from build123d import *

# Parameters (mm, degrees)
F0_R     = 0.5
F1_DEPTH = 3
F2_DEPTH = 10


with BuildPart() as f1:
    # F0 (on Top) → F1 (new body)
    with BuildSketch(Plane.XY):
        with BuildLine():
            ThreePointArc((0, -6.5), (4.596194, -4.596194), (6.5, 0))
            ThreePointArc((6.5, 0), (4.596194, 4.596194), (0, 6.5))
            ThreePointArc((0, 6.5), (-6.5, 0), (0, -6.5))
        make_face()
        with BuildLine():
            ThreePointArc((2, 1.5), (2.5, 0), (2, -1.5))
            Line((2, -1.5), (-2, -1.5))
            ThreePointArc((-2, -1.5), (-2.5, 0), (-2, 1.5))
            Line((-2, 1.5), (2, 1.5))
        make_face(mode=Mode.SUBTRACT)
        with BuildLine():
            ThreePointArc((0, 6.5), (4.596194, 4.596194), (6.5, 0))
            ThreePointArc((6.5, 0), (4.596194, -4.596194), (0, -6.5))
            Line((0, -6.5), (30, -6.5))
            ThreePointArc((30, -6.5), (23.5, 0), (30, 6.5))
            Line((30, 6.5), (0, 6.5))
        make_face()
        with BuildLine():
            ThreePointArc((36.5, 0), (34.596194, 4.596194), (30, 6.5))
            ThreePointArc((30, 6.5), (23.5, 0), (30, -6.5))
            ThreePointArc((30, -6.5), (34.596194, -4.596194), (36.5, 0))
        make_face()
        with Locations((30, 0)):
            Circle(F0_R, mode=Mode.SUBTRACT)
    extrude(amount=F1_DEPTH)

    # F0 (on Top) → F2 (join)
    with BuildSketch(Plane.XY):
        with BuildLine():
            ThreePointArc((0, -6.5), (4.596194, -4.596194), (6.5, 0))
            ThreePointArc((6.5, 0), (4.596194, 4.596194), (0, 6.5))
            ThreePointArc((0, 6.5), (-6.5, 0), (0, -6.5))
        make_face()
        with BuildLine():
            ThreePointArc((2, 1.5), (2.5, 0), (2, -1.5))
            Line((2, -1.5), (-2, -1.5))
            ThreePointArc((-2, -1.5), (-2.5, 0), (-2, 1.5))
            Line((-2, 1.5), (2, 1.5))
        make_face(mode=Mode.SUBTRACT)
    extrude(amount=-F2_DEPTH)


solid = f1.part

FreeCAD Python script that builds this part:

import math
import FreeCAD as App
import Part
import Sketcher
Q = App.Units.Quantity

doc = App.newDocument("Part")
params = doc.addObject("Spreadsheet::Sheet", "Params")
for row, (alias, value) in enumerate([
    ("sketch1_diameter", "1 mm"),
    ("sketch1_radius", "6.5 mm"),
    ("sketch1_radius2", "2.5 mm"),
    ("sketch1_width", "30 mm"),
    ("sketch1_width2", "4 mm"),
    ("pad1_length", "3 mm"),
    ("sketch2_radius", "6.5 mm"),
    ("sketch2_radius2", "2.5 mm"),
    ("sketch2_width", "4 mm"),
    ("pad2_length", "10 mm"),
], start=1):
    params.set(f"A{row}", alias)
    params.set(f"B{row}", "=" + value)
    params.setAlias(f"B{row}", alias)

body = doc.addObject("PartDesign::Body", "Body")

# Sketch on XY plane
sketch1 = body.newObject("Sketcher::SketchObject", "Sketch")
sketch1.AttachmentSupport = (doc.getObject("XY_Plane"), [""])
sketch1.MapMode = "FlatFace"
sketch1.addGeometry([
    Part.ArcOfCircle(Part.Circle(App.Vector(0, 0, 0), App.Vector(0, 0, 1), 6.5), math.radians(90), math.radians(270)),  # 0
    Part.LineSegment(App.Vector(0, -6.5, 0), App.Vector(30, -6.5, 0)),  # 1
    Part.ArcOfCircle(Part.Circle(App.Vector(30, 0, 0), App.Vector(0, 0, 1), 6.5), math.radians(-90), math.radians(0)),  # 2
    Part.ArcOfCircle(Part.Circle(App.Vector(30, 0, 0), App.Vector(0, 0, 1), 6.5), math.radians(0), math.radians(90)),  # 3
    Part.LineSegment(App.Vector(30, 6.5, 0), App.Vector(0, 6.5, 0)),  # 4
    Part.LineSegment(App.Vector(-2, 1.5, 0), App.Vector(2, 1.5, 0)),  # 5
    Part.ArcOfCircle(Part.Circle(App.Vector(0, 0, 0), App.Vector(0, 0, 1), 2.5), math.radians(-37), math.radians(37)),  # 6
    Part.LineSegment(App.Vector(2, -1.5, 0), App.Vector(-2, -1.5, 0)),  # 7
    Part.ArcOfCircle(Part.Circle(App.Vector(0, 0, 0), App.Vector(0, 0, 1), 2.5), math.radians(143), math.radians(217)),  # 8
    Part.Circle(App.Vector(30, 0, 0), App.Vector(0, 0, 1), 0.5),  # 9
], False)
sketch1.addConstraint([
    Sketcher.Constraint("Tangent", 0, 2, 1, 1),
    Sketcher.Constraint("Tangent", 1, 2, 2, 1),
    Sketcher.Constraint("Tangent", 2, 2, 3, 1),
    Sketcher.Constraint("Tangent", 3, 2, 4, 1),
    Sketcher.Constraint("Tangent", 4, 2, 0, 1),
    Sketcher.Constraint("Coincident", 5, 2, 6, 2),
    Sketcher.Constraint("Coincident", 6, 1, 7, 1),
    Sketcher.Constraint("Coincident", 7, 2, 8, 2),
    Sketcher.Constraint("Coincident", 8, 1, 5, 1),
    Sketcher.Constraint("Horizontal", 1),
    Sketcher.Constraint("Horizontal", 4),
    Sketcher.Constraint("Horizontal", 5),
    Sketcher.Constraint("Horizontal", 7),
    Sketcher.Constraint("Coincident", 0, 3, -1, 1),
    Sketcher.Constraint("Coincident", 6, 3, -1, 1),
    Sketcher.Constraint("Coincident", 8, 3, -1, 1),
    Sketcher.Constraint("Coincident", 9, 3, 2, 3),
    Sketcher.Constraint("Equal", 0, 2),
    Sketcher.Constraint("Equal", 6, 8),
    Sketcher.Constraint("PointOnObject", 2, 2, -1),
    Sketcher.Constraint("Vertical", 5, 2, 6, 1),
    Sketcher.Constraint("Diameter", 9, Q("1 mm")),
    Sketcher.Constraint("Radius", 0, Q("6.5 mm")),
    Sketcher.Constraint("Radius", 6, Q("2.5 mm")),
    Sketcher.Constraint("DistanceX", 1, 1, 1, 2, Q("30 mm")),
    Sketcher.Constraint("DistanceX", 5, 1, 5, 2, Q("4 mm")),
])
sketch1.setExpression("Constraints[21]", "Params.sketch1_diameter")
sketch1.setExpression("Constraints[22]", "Params.sketch1_radius")
sketch1.setExpression("Constraints[23]", "Params.sketch1_radius2")
sketch1.setExpression("Constraints[24]", "Params.sketch1_width")
sketch1.setExpression("Constraints[25]", "Params.sketch1_width2")
pad1 = body.newObject("PartDesign::Pad", "Pad")
pad1.Profile = sketch1
pad1.setExpression("Length", "Params.pad1_length")

# Sketch on XY plane
sketch2 = body.newObject("Sketcher::SketchObject", "Sketch001")
sketch2.AttachmentSupport = (doc.getObject("XY_Plane"), [""])
sketch2.MapMode = "FlatFace"
sketch2.addGeometry([
    Part.ArcOfCircle(Part.Circle(App.Vector(0, 0, 0), App.Vector(0, 0, 1), 6.5), math.radians(-90), math.radians(0)),  # 0
    Part.ArcOfCircle(Part.Circle(App.Vector(0, 0, 0), App.Vector(0, 0, 1), 6.5), math.radians(0), math.radians(90)),  # 1
    Part.ArcOfCircle(Part.Circle(App.Vector(0, 0, 0), App.Vector(0, 0, 1), 6.5), math.radians(90), math.radians(270)),  # 2
    Part.LineSegment(App.Vector(-2, 1.5, 0), App.Vector(2, 1.5, 0)),  # 3
    Part.ArcOfCircle(Part.Circle(App.Vector(0, 0, 0), App.Vector(0, 0, 1), 2.5), math.radians(-37), math.radians(37)),  # 4
    Part.LineSegment(App.Vector(2, -1.5, 0), App.Vector(-2, -1.5, 0)),  # 5
    Part.ArcOfCircle(Part.Circle(App.Vector(0, 0, 0), App.Vector(0, 0, 1), 2.5), math.radians(143), math.radians(217)),  # 6
], False)
sketch2.addConstraint([
    Sketcher.Constraint("Tangent", 0, 2, 1, 1),
    Sketcher.Constraint("Tangent", 1, 2, 2, 1),
    Sketcher.Constraint("Tangent", 2, 2, 0, 1),
    Sketcher.Constraint("Coincident", 3, 2, 4, 2),
    Sketcher.Constraint("Coincident", 4, 1, 5, 1),
    Sketcher.Constraint("Coincident", 5, 2, 6, 2),
    Sketcher.Constraint("Coincident", 6, 1, 3, 1),
    Sketcher.Constraint("Horizontal", 3),
    Sketcher.Constraint("Horizontal", 5),
    Sketcher.Constraint("Coincident", 0, 3, -1, 1),
    Sketcher.Constraint("Coincident", 4, 3, -1, 1),
    Sketcher.Constraint("Coincident", 6, 3, -1, 1),
    Sketcher.Constraint("Equal", 4, 6),
    Sketcher.Constraint("PointOnObject", 0, 2, -1),
    Sketcher.Constraint("PointOnObject", 1, 2, -2),
    Sketcher.Constraint("PointOnObject", 2, 2, -2),
    Sketcher.Constraint("Vertical", 3, 2, 4, 1),
    Sketcher.Constraint("Radius", 0, Q("6.5 mm")),
    Sketcher.Constraint("Radius", 4, Q("2.5 mm")),
    Sketcher.Constraint("DistanceX", 3, 1, 3, 2, Q("4 mm")),
])
sketch2.setExpression("Constraints[17]", "Params.sketch2_radius")
sketch2.setExpression("Constraints[18]", "Params.sketch2_radius2")
sketch2.setExpression("Constraints[19]", "Params.sketch2_width")
pad2 = body.newObject("PartDesign::Pad", "Pad001")
pad2.Profile = sketch2
pad2.setExpression("Length", "Params.pad2_length")
pad2.Reversed = True

doc.recompute()
